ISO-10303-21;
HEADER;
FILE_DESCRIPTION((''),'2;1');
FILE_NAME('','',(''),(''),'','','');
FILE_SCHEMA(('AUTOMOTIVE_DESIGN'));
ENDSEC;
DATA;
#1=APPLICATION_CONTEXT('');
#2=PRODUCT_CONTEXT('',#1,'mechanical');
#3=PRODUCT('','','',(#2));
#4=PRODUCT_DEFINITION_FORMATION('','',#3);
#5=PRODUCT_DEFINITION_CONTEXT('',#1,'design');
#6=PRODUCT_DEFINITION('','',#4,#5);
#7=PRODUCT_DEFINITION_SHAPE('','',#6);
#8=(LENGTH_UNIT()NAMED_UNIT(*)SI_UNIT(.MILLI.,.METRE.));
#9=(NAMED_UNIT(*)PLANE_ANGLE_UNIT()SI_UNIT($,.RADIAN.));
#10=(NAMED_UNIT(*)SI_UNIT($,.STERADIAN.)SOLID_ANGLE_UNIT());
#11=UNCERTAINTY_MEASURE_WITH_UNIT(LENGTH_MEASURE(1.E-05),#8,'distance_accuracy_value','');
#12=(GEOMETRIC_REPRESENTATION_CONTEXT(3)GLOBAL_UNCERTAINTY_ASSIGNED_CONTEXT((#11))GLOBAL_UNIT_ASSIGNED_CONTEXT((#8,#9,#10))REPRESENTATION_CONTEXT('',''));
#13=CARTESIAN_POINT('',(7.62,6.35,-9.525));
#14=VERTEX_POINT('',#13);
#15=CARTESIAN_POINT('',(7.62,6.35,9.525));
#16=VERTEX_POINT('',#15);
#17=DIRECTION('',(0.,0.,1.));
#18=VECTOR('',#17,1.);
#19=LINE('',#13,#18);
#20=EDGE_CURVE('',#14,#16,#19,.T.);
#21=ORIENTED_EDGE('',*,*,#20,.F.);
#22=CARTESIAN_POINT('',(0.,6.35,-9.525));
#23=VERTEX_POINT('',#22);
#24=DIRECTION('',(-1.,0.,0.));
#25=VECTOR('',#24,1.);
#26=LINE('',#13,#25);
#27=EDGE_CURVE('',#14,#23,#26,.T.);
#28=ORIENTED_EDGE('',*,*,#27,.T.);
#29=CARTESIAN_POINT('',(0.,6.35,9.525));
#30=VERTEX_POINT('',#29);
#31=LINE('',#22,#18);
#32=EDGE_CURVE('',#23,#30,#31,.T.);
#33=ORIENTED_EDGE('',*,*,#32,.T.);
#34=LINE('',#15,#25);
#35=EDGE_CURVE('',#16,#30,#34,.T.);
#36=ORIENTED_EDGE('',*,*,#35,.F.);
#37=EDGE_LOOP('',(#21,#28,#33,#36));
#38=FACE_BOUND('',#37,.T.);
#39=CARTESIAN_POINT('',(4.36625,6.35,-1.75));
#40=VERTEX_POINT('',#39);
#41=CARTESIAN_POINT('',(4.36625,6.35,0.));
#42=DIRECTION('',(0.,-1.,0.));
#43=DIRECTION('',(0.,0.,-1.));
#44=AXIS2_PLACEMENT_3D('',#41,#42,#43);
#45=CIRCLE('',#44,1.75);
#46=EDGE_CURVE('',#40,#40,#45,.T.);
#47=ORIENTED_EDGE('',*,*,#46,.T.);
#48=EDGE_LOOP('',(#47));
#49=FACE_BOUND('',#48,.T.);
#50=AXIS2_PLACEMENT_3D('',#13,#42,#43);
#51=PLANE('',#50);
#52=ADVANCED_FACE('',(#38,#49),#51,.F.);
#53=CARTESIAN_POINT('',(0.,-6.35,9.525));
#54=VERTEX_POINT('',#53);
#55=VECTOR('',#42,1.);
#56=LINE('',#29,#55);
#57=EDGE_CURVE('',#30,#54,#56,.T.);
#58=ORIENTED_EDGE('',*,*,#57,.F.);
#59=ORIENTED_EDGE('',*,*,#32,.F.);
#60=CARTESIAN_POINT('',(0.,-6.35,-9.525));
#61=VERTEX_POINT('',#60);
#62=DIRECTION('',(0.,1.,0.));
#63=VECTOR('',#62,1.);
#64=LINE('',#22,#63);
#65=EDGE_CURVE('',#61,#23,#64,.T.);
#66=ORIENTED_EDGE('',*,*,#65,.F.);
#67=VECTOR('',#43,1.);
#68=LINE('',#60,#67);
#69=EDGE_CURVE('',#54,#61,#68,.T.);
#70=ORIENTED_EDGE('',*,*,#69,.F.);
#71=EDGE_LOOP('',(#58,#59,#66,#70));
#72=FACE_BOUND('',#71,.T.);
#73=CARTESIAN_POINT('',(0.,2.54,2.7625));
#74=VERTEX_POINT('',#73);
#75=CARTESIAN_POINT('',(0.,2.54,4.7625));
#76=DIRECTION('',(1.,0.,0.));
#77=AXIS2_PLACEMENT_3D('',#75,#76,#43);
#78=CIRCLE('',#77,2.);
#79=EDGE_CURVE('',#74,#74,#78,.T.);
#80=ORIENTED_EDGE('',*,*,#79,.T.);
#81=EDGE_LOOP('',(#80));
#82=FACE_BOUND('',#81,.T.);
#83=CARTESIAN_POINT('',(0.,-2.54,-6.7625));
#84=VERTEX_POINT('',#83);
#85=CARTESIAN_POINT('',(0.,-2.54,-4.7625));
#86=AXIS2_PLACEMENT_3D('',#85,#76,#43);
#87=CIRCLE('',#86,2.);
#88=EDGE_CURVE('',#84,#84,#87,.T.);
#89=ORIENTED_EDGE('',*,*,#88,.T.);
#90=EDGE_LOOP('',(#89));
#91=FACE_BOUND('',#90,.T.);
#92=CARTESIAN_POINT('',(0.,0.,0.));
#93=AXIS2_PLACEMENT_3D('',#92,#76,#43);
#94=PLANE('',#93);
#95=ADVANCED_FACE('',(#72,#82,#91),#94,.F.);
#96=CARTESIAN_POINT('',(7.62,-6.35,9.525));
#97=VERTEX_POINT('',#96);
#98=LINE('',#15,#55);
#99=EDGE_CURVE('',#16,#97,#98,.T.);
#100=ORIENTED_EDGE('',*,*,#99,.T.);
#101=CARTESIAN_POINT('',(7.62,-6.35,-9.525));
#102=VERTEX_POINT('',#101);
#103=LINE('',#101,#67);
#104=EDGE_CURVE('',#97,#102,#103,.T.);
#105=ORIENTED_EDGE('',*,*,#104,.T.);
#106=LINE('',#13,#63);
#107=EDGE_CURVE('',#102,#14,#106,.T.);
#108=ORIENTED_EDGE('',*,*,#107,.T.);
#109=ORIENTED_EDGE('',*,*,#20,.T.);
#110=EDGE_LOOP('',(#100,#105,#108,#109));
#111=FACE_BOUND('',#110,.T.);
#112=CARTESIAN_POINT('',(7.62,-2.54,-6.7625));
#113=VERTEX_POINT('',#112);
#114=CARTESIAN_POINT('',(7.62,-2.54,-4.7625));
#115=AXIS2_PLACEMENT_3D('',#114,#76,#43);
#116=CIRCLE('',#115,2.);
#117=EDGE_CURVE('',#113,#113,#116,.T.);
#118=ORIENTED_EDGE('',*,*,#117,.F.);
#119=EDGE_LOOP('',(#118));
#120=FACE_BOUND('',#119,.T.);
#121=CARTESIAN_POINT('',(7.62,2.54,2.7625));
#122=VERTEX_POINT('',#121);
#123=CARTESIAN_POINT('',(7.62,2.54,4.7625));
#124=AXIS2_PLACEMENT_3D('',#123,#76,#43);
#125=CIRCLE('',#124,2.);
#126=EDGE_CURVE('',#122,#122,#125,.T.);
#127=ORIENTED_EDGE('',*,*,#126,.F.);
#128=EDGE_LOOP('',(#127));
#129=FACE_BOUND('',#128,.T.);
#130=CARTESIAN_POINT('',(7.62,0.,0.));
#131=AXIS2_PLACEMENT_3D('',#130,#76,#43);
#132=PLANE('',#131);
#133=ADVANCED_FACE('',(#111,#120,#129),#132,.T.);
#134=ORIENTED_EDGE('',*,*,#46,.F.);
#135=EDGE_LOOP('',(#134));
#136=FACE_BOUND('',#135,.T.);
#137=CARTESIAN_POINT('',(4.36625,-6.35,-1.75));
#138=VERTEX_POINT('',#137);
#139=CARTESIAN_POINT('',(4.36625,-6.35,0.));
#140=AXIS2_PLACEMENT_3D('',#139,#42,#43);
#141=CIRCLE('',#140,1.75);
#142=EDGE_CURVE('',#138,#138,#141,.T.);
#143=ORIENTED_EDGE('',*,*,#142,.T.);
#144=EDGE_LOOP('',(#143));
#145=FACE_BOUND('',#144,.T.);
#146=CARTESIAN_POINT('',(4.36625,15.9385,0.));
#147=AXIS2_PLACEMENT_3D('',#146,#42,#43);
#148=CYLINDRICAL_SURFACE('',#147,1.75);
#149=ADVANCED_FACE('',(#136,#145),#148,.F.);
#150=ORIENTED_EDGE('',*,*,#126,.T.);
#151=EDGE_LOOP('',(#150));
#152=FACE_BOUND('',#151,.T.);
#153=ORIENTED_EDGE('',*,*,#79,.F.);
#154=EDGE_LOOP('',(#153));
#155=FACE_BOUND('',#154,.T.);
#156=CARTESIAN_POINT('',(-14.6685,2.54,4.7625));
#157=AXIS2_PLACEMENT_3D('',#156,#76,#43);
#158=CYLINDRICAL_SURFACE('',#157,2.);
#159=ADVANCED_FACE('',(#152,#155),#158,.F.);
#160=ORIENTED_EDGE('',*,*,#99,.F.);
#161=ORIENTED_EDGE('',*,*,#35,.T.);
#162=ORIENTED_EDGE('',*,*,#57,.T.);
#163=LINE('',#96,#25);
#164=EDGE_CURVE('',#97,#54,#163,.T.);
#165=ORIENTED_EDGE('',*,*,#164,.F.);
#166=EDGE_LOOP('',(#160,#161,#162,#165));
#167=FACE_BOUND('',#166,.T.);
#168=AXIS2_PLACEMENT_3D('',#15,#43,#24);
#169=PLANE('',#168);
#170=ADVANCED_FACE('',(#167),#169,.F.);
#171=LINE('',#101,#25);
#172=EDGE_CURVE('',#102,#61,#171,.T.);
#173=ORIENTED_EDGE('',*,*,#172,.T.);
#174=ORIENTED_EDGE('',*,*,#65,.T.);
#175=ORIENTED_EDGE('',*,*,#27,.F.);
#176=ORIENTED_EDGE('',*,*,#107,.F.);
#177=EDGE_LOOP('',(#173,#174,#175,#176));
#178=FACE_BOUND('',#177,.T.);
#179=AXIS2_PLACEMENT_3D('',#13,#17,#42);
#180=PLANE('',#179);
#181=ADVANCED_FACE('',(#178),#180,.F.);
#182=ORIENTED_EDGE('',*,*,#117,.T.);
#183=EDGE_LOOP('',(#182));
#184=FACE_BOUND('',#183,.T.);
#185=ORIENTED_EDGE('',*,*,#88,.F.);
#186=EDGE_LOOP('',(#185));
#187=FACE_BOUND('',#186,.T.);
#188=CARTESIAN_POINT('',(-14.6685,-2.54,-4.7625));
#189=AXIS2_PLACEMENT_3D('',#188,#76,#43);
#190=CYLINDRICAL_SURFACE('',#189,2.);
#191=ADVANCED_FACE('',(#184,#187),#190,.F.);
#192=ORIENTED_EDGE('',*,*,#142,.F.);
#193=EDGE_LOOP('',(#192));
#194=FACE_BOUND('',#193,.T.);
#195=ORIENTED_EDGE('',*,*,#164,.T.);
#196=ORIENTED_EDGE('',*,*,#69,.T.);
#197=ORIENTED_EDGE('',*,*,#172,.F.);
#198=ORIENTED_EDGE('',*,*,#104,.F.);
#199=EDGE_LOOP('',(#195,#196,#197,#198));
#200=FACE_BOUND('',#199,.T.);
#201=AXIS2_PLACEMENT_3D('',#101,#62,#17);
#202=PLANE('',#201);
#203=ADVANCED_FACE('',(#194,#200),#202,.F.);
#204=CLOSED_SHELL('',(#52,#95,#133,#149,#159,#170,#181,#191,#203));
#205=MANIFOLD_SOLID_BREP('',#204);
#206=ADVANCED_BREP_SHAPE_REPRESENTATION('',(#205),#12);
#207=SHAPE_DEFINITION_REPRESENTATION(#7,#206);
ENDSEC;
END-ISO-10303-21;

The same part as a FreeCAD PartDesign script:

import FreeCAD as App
import Part
import Sketcher
from FreeCAD import Vector
Q = App.Units.Quantity

doc = App.newDocument("Part")
body = doc.addObject("PartDesign::Body", "Body")

# Sketch on YZ plane
sketch1 = body.newObject("Sketcher::SketchObject", "Sketch")
sketch1.AttachmentSupport = (doc.getObject("YZ_Plane"), [""])
sketch1.MapMode = "FlatFace"
sketch1.addGeometry(Part.LineSegment(Vector(-6, 10, 0), Vector(-6, -10, 0)), False)
sketch1.addGeometry(Part.LineSegment(Vector(-6, -10, 0), Vector(6, -10, 0)), False)
sketch1.addGeometry(Part.LineSegment(Vector(6, -10, 0), Vector(6, 10, 0)), False)
sketch1.addGeometry(Part.LineSegment(Vector(6, 10, 0), Vector(-6, 10, 0)), False)
sketch1.addConstraint(Sketcher.Constraint("Coincident", 0, 2, 1, 1))
sketch1.addConstraint(Sketcher.Constraint("Coincident", 1, 2, 2, 1))
sketch1.addConstraint(Sketcher.Constraint("Coincident", 2, 2, 3, 1))
sketch1.addConstraint(Sketcher.Constraint("Coincident", 3, 2, 0, 1))
sketch1.addConstraint(Sketcher.Constraint("Vertical", 0))
sketch1.addConstraint(Sketcher.Constraint("Horizontal", 1))
sketch1.addConstraint(Sketcher.Constraint("Vertical", 2))
sketch1.addConstraint(Sketcher.Constraint("Horizontal", 3))
sketch1.addConstraint(Sketcher.Constraint("Symmetric", 0, 2, 2, 2, -1, 1))
sketch1.addConstraint(Sketcher.Constraint("DistanceX", 1, 1, 1, 2, Q("0.5 in")))
sketch1.addConstraint(Sketcher.Constraint("DistanceY", 0, 2, 0, 1, Q("0.75 in")))
pad1 = body.newObject("PartDesign::Pad", "Pad")
pad1.Profile = sketch1
pad1.Length = Q("0.3 in")

# Sketch on XZ plane
sketch2 = body.newObject("Sketcher::SketchObject", "Sketch001")
sketch2.AttachmentSupport = (doc.getObject("XZ_Plane"), [""])
sketch2.MapMode = "FlatFace"
sketch2.AttachmentOffset = App.Placement(Vector(0, 0, 0.25 * 25.4), App.Rotation())
sketch2.addGeometry(Part.Circle(Vector(4.4, 0, 0), Vector(0, 0, 1), 1.8), False)
sketch2.addConstraint(Sketcher.Constraint("PointOnObject", 0, 3, -1))
sketch2.addConstraint(Sketcher.Constraint("Diameter", 0, Q("3.5 mm")))
sketch2.addConstraint(Sketcher.Constraint("DistanceX", -1, 1, 0, 3, Q("4.36625 mm")))
pocket1 = body.newObject("PartDesign::Pocket", "Pocket")
pocket1.Profile = sketch2
pocket1.Length = Q("0.8775 in")

# Sketch on YZ plane
sketch3 = body.newObject("Sketcher::SketchObject", "Sketch002")
sketch3.AttachmentSupport = (doc.getObject("YZ_Plane"), [""])
sketch3.MapMode = "FlatFace"
sketch3.AttachmentOffset = App.Placement(Vector(0, 0, 0.3 * 25.4), App.Rotation())
sketch3.addGeometry(Part.Circle(Vector(2.5, 4.8, 0), Vector(0, 0, 1), 2), False)
sketch3.addGeometry(Part.Circle(Vector(-2.5, -4.8, 0), Vector(0, 0, 1), 2), False)
sketch3.addConstraint(Sketcher.Constraint("Equal", 0, 1))
sketch3.addConstraint(Sketcher.Constraint("Symmetric", 0, 3, 1, 3, -1, 1))
sketch3.addConstraint(Sketcher.Constraint("DistanceX", -1, 1, 0, 3, Q("0.1 in")))
sketch3.addConstraint(Sketcher.Constraint("Diameter", 0, Q("4 mm")))
sketch3.addConstraint(Sketcher.Constraint("DistanceY", -1, 1, 0, 3, Q("0.1875 in")))
pocket2 = body.newObject("PartDesign::Pocket", "Pocket001")
pocket2.Profile = sketch3
pocket2.Length = Q("0.8775 in")

doc.recompute()
